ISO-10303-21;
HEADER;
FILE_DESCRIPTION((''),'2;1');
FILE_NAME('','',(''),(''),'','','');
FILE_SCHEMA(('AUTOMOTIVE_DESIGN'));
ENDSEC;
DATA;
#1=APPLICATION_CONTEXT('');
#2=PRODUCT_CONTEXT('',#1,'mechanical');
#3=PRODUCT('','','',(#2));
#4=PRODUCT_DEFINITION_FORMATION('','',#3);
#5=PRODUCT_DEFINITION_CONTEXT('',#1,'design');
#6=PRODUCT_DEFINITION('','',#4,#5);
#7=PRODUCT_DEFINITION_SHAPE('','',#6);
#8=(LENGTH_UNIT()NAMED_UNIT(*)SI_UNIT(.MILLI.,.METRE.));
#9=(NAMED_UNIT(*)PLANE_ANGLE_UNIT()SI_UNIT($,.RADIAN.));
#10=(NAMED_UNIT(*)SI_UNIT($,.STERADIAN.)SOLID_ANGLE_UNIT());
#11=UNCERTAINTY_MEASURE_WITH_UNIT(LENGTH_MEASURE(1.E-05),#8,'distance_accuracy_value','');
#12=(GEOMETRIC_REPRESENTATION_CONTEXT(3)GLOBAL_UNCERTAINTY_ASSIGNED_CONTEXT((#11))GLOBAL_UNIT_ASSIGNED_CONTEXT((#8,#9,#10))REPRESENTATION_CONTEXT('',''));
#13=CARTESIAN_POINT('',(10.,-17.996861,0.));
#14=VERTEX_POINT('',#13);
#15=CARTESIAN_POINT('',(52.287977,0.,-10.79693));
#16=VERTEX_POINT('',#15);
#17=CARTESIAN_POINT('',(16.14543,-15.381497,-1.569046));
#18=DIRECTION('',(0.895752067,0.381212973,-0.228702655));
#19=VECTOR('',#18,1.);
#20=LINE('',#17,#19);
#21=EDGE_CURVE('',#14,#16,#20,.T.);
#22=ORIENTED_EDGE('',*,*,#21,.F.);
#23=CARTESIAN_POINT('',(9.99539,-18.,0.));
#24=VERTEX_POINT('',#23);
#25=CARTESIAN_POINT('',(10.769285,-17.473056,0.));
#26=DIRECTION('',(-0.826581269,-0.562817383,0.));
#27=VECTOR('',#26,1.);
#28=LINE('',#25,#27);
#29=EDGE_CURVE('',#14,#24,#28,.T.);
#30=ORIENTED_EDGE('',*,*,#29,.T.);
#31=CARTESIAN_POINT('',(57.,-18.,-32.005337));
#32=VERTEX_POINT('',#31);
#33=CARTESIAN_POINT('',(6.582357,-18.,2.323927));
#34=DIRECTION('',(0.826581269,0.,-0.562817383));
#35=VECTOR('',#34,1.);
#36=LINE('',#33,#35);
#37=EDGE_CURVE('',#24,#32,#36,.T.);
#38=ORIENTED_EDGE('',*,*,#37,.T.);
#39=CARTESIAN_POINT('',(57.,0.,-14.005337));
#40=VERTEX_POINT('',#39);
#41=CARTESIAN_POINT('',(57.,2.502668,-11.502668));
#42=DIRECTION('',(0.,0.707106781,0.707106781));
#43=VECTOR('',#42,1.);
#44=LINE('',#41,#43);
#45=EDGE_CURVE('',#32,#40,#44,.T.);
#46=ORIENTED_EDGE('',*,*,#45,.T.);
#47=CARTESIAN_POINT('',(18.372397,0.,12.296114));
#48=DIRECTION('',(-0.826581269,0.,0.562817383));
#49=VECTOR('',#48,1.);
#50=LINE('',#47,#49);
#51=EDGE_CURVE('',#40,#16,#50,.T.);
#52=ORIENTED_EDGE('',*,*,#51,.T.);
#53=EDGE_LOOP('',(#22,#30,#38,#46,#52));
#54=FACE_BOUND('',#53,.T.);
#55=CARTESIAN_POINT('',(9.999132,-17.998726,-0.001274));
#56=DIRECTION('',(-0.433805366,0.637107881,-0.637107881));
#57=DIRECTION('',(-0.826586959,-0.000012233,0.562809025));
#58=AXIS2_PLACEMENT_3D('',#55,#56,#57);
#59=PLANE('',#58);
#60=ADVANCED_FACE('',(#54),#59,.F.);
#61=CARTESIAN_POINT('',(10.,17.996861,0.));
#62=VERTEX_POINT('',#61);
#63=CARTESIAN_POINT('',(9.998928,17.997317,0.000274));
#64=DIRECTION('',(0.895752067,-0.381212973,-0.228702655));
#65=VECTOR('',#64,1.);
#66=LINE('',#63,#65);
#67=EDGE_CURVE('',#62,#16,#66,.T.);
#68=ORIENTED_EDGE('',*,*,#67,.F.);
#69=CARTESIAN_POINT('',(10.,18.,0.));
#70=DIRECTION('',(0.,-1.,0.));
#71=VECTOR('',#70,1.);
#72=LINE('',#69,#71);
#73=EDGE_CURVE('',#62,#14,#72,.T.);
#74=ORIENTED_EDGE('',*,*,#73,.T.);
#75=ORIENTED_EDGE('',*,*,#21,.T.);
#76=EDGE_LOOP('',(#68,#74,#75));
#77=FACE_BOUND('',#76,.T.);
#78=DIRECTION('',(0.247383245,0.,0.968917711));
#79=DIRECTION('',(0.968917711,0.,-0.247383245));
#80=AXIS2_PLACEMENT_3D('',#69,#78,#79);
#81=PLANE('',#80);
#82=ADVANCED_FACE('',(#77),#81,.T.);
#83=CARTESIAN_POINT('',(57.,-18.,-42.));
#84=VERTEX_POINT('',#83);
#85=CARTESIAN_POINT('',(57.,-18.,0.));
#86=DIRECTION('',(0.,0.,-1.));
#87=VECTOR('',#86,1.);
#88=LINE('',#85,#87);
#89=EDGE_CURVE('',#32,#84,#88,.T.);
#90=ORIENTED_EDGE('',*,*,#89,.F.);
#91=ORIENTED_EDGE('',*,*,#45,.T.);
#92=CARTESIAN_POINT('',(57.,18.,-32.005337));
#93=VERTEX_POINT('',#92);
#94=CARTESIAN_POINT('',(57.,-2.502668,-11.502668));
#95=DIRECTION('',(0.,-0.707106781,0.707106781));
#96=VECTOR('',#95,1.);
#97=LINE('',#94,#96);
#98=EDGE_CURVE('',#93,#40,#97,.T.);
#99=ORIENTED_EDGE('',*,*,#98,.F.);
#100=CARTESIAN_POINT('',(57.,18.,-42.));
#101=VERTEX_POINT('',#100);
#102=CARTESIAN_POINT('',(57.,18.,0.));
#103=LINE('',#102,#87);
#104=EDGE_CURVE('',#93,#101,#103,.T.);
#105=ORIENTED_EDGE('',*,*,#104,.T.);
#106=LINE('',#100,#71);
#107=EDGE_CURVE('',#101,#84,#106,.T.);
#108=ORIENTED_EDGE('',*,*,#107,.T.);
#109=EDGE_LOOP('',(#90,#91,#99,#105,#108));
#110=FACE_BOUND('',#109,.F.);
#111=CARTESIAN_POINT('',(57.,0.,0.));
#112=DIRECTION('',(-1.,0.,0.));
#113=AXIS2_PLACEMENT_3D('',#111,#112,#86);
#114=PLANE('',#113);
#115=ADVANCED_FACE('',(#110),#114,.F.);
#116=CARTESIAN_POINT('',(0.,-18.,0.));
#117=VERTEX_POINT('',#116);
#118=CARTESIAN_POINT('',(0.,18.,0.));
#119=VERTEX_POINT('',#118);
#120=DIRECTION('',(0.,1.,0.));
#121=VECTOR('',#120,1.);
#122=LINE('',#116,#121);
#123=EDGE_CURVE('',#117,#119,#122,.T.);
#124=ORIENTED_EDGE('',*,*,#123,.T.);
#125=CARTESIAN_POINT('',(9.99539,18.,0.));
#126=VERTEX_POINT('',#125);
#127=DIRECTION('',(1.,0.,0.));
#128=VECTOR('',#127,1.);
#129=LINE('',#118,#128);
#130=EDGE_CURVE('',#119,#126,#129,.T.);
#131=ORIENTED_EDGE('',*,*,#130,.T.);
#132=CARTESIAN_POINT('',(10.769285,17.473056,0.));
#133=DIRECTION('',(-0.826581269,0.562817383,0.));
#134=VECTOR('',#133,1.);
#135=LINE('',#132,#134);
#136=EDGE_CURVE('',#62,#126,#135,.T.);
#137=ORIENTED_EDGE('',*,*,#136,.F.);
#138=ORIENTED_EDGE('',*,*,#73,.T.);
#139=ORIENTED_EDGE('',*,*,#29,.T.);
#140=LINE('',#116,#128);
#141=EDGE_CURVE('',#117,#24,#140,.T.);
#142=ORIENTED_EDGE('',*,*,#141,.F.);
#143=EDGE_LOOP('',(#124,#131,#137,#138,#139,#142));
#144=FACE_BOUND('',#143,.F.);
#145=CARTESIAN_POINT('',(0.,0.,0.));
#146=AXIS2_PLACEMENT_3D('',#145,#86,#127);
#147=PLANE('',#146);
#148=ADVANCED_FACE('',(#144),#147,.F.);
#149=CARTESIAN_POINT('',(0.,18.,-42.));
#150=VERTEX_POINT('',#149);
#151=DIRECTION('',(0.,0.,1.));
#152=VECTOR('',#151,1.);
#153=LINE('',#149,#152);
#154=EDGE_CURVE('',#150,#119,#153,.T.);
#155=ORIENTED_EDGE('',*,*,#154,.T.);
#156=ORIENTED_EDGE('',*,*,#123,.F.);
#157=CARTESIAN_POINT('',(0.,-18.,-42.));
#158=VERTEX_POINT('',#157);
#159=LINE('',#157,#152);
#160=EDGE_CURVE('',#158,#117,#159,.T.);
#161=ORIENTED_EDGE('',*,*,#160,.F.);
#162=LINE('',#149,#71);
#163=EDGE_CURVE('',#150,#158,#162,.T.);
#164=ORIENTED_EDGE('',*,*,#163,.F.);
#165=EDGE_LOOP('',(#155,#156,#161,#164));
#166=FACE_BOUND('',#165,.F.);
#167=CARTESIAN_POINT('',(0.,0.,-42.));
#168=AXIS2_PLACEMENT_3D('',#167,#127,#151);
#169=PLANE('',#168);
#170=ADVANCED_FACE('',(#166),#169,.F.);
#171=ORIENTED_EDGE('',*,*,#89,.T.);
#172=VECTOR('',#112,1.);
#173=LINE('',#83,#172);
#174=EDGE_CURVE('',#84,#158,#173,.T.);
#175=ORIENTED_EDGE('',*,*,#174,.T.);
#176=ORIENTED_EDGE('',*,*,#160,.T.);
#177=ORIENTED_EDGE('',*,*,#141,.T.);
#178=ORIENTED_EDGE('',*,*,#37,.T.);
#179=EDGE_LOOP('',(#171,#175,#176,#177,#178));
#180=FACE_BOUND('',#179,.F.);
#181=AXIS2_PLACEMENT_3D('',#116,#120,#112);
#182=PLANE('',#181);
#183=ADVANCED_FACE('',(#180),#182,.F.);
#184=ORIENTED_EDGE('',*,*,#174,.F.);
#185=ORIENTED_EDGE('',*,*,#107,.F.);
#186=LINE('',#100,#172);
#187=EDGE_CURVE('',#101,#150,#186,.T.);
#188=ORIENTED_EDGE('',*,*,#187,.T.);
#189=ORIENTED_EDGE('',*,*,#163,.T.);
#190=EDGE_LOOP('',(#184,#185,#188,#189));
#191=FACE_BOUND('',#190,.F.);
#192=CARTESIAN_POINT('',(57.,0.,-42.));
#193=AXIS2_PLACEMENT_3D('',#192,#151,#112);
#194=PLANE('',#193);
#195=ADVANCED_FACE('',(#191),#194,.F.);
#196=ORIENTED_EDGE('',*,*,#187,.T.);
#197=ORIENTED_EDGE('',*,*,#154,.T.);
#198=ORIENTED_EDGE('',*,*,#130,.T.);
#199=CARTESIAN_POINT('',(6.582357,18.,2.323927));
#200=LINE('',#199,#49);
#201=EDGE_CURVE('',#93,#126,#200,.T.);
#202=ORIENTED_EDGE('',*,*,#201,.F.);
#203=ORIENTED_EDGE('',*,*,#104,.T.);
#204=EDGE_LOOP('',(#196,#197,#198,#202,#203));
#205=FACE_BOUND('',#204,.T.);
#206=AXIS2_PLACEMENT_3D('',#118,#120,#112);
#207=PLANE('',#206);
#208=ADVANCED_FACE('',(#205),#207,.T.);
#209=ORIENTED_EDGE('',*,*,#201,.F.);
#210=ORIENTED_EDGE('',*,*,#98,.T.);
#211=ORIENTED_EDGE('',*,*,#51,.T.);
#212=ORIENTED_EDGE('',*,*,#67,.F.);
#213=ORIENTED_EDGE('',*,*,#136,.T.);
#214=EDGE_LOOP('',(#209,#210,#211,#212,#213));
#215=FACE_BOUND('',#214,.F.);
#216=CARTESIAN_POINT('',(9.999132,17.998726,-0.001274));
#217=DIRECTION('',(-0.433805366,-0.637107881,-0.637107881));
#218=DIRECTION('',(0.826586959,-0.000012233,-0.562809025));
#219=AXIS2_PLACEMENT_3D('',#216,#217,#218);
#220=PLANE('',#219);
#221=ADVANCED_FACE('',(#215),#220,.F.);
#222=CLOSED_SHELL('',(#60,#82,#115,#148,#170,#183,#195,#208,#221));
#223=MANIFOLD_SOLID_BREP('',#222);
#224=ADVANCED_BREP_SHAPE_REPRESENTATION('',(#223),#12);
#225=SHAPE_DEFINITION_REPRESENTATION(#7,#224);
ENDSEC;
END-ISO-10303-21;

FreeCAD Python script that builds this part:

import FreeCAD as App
import Part
import Sketcher
from FreeCAD import Vector

doc = App.newDocument("Part")
params = doc.addObject("Spreadsheet::Sheet", "Params")
for row, (alias, value) in enumerate([
    ("sketch1_width", "57 mm"),
    ("sketch1_height", "42 mm"),
    ("pad1_length", "36 mm"),
    ("sketch2_width", "47 mm"),
    ("sketch2_height", "12 mm"),
    ("pocket1_length", "40 mm"),
    ("pocket2_length", "40 mm"),
], start=1):
    params.set(f"A{row}", alias)
    params.set(f"B{row}", "=" + value)
    params.setAlias(f"B{row}", alias)

body = doc.addObject("PartDesign::Body", "Body")

# Sketch on XZ plane
sketch1 = body.newObject("Sketcher::SketchObject", "Sketch")
sketch1.AttachmentSupport = (doc.getObject("XZ_Plane"), [""])
sketch1.MapMode = "FlatFace"
sketch1.addGeometry([
    Part.LineSegment(Vector(0, -42, 0), Vector(0, 0, 0)),
    Part.LineSegment(Vector(0, 0, 0), Vector(57, 0, 0)),
    Part.LineSegment(Vector(57, 0, 0), Vector(57, -42, 0)),
    Part.LineSegment(Vector(57, -42, 0), Vector(0, -42, 0)),
], False)
sketch1.addConstraint([
    Sketcher.Constraint("Coincident", 0, 2, 1, 1),
    Sketcher.Constraint("Coincident", 1, 2, 2, 1),
    Sketcher.Constraint("Coincident", 2, 2, 3, 1),
    Sketcher.Constraint("Coincident", 3, 2, 0, 1),
    Sketcher.Constraint("Vertical", 0),
    Sketcher.Constraint("Horizontal", 1),
    Sketcher.Constraint("Vertical", 2),
    Sketcher.Constraint("Horizontal", 3),
    Sketcher.Constraint("Coincident", 0, 2, -1, 1),
    Sketcher.Constraint("DistanceX", 1, 1, 1, 2, 57.0),
    Sketcher.Constraint("DistanceY", 0, 1, 0, 2, 42.0),
])
sketch1.setExpression("Constraints[9]", "Params.sketch1_width")
sketch1.setExpression("Constraints[10]", "Params.sketch1_height")
pad1 = body.newObject("PartDesign::Pad", "Pad")
pad1.Profile = sketch1
pad1.setExpression("Length", "Params.pad1_length")
pad1.Midplane = True

# Sketch on XZ plane
sketch2 = body.newObject("Sketcher::SketchObject", "Sketch001")
sketch2.AttachmentSupport = (doc.getObject("XZ_Plane"), [""])
sketch2.MapMode = "FlatFace"
sketch2.AttachmentOffset = App.Placement(Vector(0, 0, -18), App.Rotation())
sketch2.addGeometry([
    Part.LineSegment(Vector(57, -12, 0), Vector(10, 0, 0)),
    Part.LineSegment(Vector(10, 0, 0), Vector(57, 0, 0)),
    Part.LineSegment(Vector(57, 0, 0), Vector(57, -12, 0)),
], False)
sketch2.addConstraint([
    Sketcher.Constraint("Coincident", 0, 2, 1, 1),
    Sketcher.Constraint("Coincident", 1, 2, 2, 1),
    Sketcher.Constraint("Coincident", 2, 2, 0, 1),
    Sketcher.Constraint("Horizontal", 1),
    Sketcher.Constraint("Vertical", 2),
    Sketcher.Constraint("PointOnObject", 0, 2, -1),
    Sketcher.Constraint("DistanceX", -1, 1, 0, 2, 10.0),
    Sketcher.Constraint("DistanceX", 1, 1, 1, 2, 47.0),
    Sketcher.Constraint("DistanceY", 2, 2, 2, 1, 12.0),
])
sketch2.setExpression("Constraints[7]", "Params.sketch2_width")
sketch2.setExpression("Constraints[8]", "Params.sketch2_height")
pocket1 = body.newObject("PartDesign::Pocket", "Pocket")
pocket1.Profile = sketch2
pocket1.setExpression("Length", "Params.pocket1_length")
pocket1.Reversed = True

# Sketch on an angled plane
sketch3 = body.newObject("Sketcher::SketchObject", "Sketch002")
sketch3.Placement = App.Placement(Vector(10, 18, 0), App.Rotation(Vector(0.826586959, -0.000012233, -0.562809025), Vector(0.358562272, -0.770774641, 0.526630373), Vector(-0.433805366, -0.637107881, -0.637107881), "ZXY"))
sketch3.addGeometry([
    Part.LineSegment(Vector(-15, 29, 0), Vector(-15, -12, 0)),
    Part.LineSegment(Vector(-15, -12, 0), Vector(94, -12, 0)),
    Part.LineSegment(Vector(94, -12, 0), Vector(94, 29, 0)),
    Part.LineSegment(Vector(94, 29, 0), Vector(-15, 29, 0)),
], False)
sketch3.addConstraint([
    Sketcher.Constraint("Coincident", 0, 2, 1, 1),
    Sketcher.Constraint("Coincident", 1, 2, 2, 1),
    Sketcher.Constraint("Coincident", 2, 2, 3, 1),
    Sketcher.Constraint("Coincident", 3, 2, 0, 1),
    Sketcher.Constraint("Vertical", 0),
    Sketcher.Constraint("Horizontal", 1),
    Sketcher.Constraint("Vertical", 2),
    Sketcher.Constraint("Horizontal", 3),
    Sketcher.Constraint("DistanceX", 1, 1, 1, 2, 108.8713),
    Sketcher.Constraint("DistanceY", 0, 2, 0, 1, 41.1384),
    Sketcher.Constraint("DistanceX", -1, 1, 1, 2, 93.717),
    Sketcher.Constraint("DistanceY", 0, 2, -1, 1, 12.3218),
])
pocket2 = body.newObject("PartDesign::Pocket", "Pocket001")
pocket2.Profile = sketch3
pocket2.setExpression("Length", "Params.pocket2_length")
doc.recompute()

mirrored = body.newObject("PartDesign::Mirrored", "Mirrored")
mirrored.Originals = [pocket2]
mirrored.MirrorPlane = (doc.getObject("XZ_Plane"), [""])
body.Tip = mirrored

doc.recompute()
